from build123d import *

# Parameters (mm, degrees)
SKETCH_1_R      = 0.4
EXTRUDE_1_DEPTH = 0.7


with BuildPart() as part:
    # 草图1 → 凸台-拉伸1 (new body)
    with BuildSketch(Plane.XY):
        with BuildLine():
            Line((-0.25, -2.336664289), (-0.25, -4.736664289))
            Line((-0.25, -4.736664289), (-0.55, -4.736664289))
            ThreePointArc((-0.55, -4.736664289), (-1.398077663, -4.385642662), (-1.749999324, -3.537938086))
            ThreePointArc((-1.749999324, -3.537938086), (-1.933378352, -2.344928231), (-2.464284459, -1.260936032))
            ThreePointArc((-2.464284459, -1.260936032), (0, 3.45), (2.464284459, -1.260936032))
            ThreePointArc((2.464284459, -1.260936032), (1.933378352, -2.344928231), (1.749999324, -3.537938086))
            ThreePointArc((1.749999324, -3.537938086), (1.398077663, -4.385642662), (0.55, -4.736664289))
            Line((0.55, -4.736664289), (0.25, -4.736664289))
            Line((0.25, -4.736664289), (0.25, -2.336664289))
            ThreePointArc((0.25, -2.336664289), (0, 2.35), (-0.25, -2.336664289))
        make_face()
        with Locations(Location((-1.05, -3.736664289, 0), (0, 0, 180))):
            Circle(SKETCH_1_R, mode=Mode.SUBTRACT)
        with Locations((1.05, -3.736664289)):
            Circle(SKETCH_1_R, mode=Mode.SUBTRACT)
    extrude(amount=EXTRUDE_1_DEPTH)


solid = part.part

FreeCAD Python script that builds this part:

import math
import FreeCAD as App
import Part
import Sketcher
from FreeCAD import Vector

doc = App.newDocument("Part")
body = doc.addObject("PartDesign::Body", "Body")

# Sketch on XY plane
sketch1 = doc.addObject("Sketcher::SketchObject", "Sketch")
body.addObject(sketch1)
sketch1.AttachmentSupport = (doc.XY_Plane, [""])
sketch1.MapMode = "FlatFace"
sketch1.addGeometry(Part.LineSegment(Vector(-0.25, -4.736664, 0), Vector(-0.25, -2.336664, 0)), False)
sketch1.addGeometry(Part.ArcOfCircle(Part.Circle(Vector(0, 0, 0), Vector(0, 0, 1), 2.35), math.radians(-83.893148), math.radians(263.893148)), False)
sketch1.addGeometry(Part.LineSegment(Vector(0.25, -2.336664, 0), Vector(0.25, -4.736664, 0)), False)
sketch1.addGeometry(Part.LineSegment(Vector(0.25, -4.736664, 0), Vector(0.55, -4.736664, 0)), False)
sketch1.addGeometry(Part.ArcOfCircle(Part.Circle(Vector(0.55, -3.536664, 0), Vector(0, 0, 1), 1.2), math.radians(-90), math.radians(-0.060819)), False)
sketch1.addGeometry(Part.ArcOfCircle(Part.Circle(Vector(5.749997, -3.542184, 0), Vector(0, 0, 1), 4), math.radians(145.228014), math.radians(179.939181)), False)
sketch1.addGeometry(Part.ArcOfCircle(Part.Circle(Vector(0, 0.45, 0), Vector(0, 0, 1), 3), math.radians(-34.771986), math.radians(214.771986)), False)
sketch1.addGeometry(Part.ArcOfCircle(Part.Circle(Vector(-5.749997, -3.542184, 0), Vector(0, 0, 1), 4), math.radians(0.060819), math.radians(34.771986)), False)
sketch1.addGeometry(Part.ArcOfCircle(Part.Circle(Vector(-0.55, -3.536664, 0), Vector(0, 0, 1), 1.2), math.radians(-179.939181), math.radians(-90)), False)
sketch1.addGeometry(Part.LineSegment(Vector(-0.55, -4.736664, 0), Vector(-0.25, -4.736664, 0)), False)
sketch1.addGeometry(Part.Circle(Vector(1.05, -3.736664, 0), Vector(0, 0, 1), 0.4), False)
sketch1.addGeometry(Part.Circle(Vector(-1.05, -3.736664, 0), Vector(0, 0, 1), 0.4), False)
sketch1.addConstraint(Sketcher.Constraint("Coincident", 0, 2, 1, 2))
sketch1.addConstraint(Sketcher.Constraint("Coincident", 1, 1, 2, 1))
sketch1.addConstraint(Sketcher.Constraint("Coincident", 2, 2, 3, 1))
sketch1.addConstraint(Sketcher.Constraint("Tangent", 3, 2, 4, 1))
sketch1.addConstraint(Sketcher.Constraint("Tangent", 4, 2, 5, 2))
sketch1.addConstraint(Sketcher.Constraint("Tangent", 5, 1, 6, 1))
sketch1.addConstraint(Sketcher.Constraint("Tangent", 6, 2, 7, 2))
sketch1.addConstraint(Sketcher.Constraint("Tangent", 7, 1, 8, 1))
sketch1.addConstraint(Sketcher.Constraint("Tangent", 8, 2, 9, 1))
sketch1.addConstraint(Sketcher.Constraint("Coincident", 9, 2, 0, 1))
sketch1.addConstraint(Sketcher.Constraint("Vertical", 0))
sketch1.addConstraint(Sketcher.Constraint("Vertical", 2))
sketch1.addConstraint(Sketcher.Constraint("Horizontal", 3))
sketch1.addConstraint(Sketcher.Constraint("Horizontal", 9))
sketch1.addConstraint(Sketcher.Constraint("Coincident", 1, 3, -1, 1))
sketch1.addConstraint(Sketcher.Constraint("Equal", 5, 7))
sketch1.addConstraint(Sketcher.Constraint("Equal", 4, 8))
sketch1.addConstraint(Sketcher.Constraint("Equal", 10, 11))
sketch1.addConstraint(Sketcher.Constraint("Symmetric", 5, 3, 7, 3, -2))
sketch1.addConstraint(Sketcher.Constraint("Symmetric", 10, 3, 11, 3, -2))
sketch1.addConstraint(Sketcher.Constraint("Symmetric", 2, 2, 9, 2, -2))
sketch1.addConstraint(Sketcher.Constraint("Radius", 5, 4.0))
sketch1.addConstraint(Sketcher.Constraint("Radius", 6, 3.0))
sketch1.addConstraint(Sketcher.Constraint("Diameter", 10, 0.8))
sketch1.addConstraint(Sketcher.Constraint("Radius", 4, 1.2))
sketch1.addConstraint(Sketcher.Constraint("Radius", 1, 2.35))
sketch1.addConstraint(Sketcher.Constraint("DistanceX", 3, 1, 3, 2, 0.3))
sketch1.addConstraint(Sketcher.Constraint("DistanceY", 0, 1, 0, 2, 2.4))
sketch1.addConstraint(Sketcher.Constraint("DistanceY", 2, 2, 10, 3, 1.0))
sketch1.addConstraint(Sketcher.Constraint("DistanceX", 7, 1, 2, 2, 1.999999))
sketch1.addConstraint(Sketcher.Constraint("DistanceX", 4, 3, 10, 3, 0.5))
sketch1.addConstraint(Sketcher.Constraint("DistanceY", -1, 1, 6, 3, 0.45))
pad1 = doc.addObject("PartDesign::Pad", "Pad")
body.addObject(pad1)
pad1.Profile = sketch1
pad1.Length = 0.7

doc.recompute()
